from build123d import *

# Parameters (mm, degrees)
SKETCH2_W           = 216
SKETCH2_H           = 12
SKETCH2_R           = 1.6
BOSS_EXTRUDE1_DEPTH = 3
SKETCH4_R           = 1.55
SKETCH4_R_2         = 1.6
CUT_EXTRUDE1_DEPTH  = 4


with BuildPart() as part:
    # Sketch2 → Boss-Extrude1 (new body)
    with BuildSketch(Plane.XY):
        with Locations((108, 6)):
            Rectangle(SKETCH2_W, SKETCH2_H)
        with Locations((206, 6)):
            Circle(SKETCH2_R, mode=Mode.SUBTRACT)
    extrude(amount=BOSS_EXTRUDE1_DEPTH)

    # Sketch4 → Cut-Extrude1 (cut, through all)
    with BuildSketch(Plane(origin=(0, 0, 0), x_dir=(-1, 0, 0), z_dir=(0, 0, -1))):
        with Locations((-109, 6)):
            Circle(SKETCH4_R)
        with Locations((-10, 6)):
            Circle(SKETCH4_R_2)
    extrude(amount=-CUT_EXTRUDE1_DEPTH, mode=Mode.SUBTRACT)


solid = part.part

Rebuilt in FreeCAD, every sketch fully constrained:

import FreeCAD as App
import Part
import Sketcher
Q = App.Units.Quantity

doc = App.newDocument("Part")
body = doc.addObject("PartDesign::Body", "Body")

# Sketch on XY plane
sketch1 = body.newObject("Sketcher::SketchObject", "Sketch")
sketch1.AttachmentSupport = (doc.getObject("XY_Plane"), [""])
sketch1.MapMode = "FlatFace"
sketch1.addGeometry([
    Part.LineSegment(App.Vector(0, 12, 0), App.Vector(0, 0, 0)),  # 0
    Part.LineSegment(App.Vector(0, 0, 0), App.Vector(216, 0, 0)),  # 1
    Part.LineSegment(App.Vector(216, 0, 0), App.Vector(216, 12, 0)),  # 2
    Part.LineSegment(App.Vector(216, 12, 0), App.Vector(0, 12, 0)),  # 3
    Part.Circle(App.Vector(206, 6, 0), App.Vector(0, 0, 1), 1.6),  # 4
], False)
sketch1.addConstraint([
    Sketcher.Constraint("Coincident", 0, 2, 1, 1),
    Sketcher.Constraint("Coincident", 1, 2, 2, 1),
    Sketcher.Constraint("Coincident", 2, 2, 3, 1),
    Sketcher.Constraint("Coincident", 3, 2, 0, 1),
    Sketcher.Constraint("Vertical", 0),
    Sketcher.Constraint("Horizontal", 1),
    Sketcher.Constraint("Vertical", 2),
    Sketcher.Constraint("Horizontal", 3),
    Sketcher.Constraint("Coincident", 0, 2, -1, 1),
    Sketcher.Constraint("Diameter", 4, Q("3.2 mm")),
    Sketcher.Constraint("DistanceX", 1, 1, 1, 2, Q("216 mm")),
    Sketcher.Constraint("DistanceY", 0, 2, 0, 1, Q("12 mm")),
    Sketcher.Constraint("DistanceX", -1, 1, 4, 3, Q("206 mm")),
    Sketcher.Constraint("DistanceY", -1, 1, 4, 3, Q("6 mm")),
])
pad1 = body.newObject("PartDesign::Pad", "Pad")
pad1.Profile = sketch1
pad1.Length = 3

# Sketch on XY plane
sketch2 = body.newObject("Sketcher::SketchObject", "Sketch001")
sketch2.AttachmentSupport = (doc.getObject("XY_Plane"), [""])
sketch2.MapMode = "FlatFace"
sketch2.addGeometry([
    Part.Circle(App.Vector(109, 6, 0), App.Vector(0, 0, 1), 1.6),
    Part.Circle(App.Vector(10, 6, 0), App.Vector(0, 0, 1), 1.6),
], False)
sketch2.addConstraint([
    Sketcher.Constraint("Horizontal", 0, 3, 1, 3),
    Sketcher.Constraint("Diameter", 0, Q("3.1 mm")),
    Sketcher.Constraint("Diameter", 1, Q("3.2 mm")),
    Sketcher.Constraint("DistanceX", -1, 1, 0, 3, Q("109 mm")),
    Sketcher.Constraint("DistanceY", -1, 1, 0, 3, Q("6 mm")),
    Sketcher.Constraint("DistanceX", -1, 1, 1, 3, Q("10 mm")),
])
pocket1 = body.newObject("PartDesign::Pocket", "Pocket")
pocket1.Profile = sketch2
pocket1.Type = "ThroughAll"
pocket1.Reversed = True

doc.recompute()
